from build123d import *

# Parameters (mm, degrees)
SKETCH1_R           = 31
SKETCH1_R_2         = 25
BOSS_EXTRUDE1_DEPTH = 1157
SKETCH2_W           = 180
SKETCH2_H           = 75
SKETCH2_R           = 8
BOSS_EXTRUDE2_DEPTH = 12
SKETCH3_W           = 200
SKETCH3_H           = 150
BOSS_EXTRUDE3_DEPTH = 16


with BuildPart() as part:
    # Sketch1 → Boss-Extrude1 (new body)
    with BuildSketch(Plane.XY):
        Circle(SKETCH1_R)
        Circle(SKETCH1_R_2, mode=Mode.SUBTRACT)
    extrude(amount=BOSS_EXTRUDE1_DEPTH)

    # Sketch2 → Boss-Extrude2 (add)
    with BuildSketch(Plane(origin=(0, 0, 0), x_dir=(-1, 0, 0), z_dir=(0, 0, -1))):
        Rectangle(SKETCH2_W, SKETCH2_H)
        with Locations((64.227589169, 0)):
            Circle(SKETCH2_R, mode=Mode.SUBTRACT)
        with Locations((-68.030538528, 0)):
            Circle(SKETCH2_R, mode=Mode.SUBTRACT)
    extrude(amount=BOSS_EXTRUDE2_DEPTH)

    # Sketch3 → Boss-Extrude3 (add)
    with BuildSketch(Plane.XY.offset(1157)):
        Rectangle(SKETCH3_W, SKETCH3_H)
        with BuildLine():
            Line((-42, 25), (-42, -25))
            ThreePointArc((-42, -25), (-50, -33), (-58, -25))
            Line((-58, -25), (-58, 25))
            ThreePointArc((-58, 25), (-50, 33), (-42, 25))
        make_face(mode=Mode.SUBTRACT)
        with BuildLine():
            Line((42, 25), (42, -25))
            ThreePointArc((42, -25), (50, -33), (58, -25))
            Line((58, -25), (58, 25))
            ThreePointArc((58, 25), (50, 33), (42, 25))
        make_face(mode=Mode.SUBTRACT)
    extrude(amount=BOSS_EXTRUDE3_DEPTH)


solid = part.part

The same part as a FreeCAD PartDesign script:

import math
import FreeCAD as App
import Part
import Sketcher
from FreeCAD import Vector


def add_polygon(sketch, points):
    """Adds a closed chain of lines whose ends are joined by coincident constraints."""
    first, n = sketch.GeometryCount, len(points)
    for a, b in zip(points, points[1:] + points[:1]):
        sketch.addGeometry(Part.LineSegment(App.Vector(*a, 0), App.Vector(*b, 0)), False)
    for i in range(n):
        sketch.addConstraint(Sketcher.Constraint("Coincident", first + i, 2, first + (i + 1) % n, 1))

doc = App.newDocument("Part")
params = doc.addObject("Spreadsheet::Sheet", "Params")
for row, (alias, value) in enumerate([
    ("sketch1_diameter", "62 mm"),
    ("sketch1_diameter2", "50 mm"),
    ("pad1_length", "1157 mm"),
    ("sketch2_diameter", "16 mm"),
    ("sketch2_width", "180 mm"),
    ("sketch2_height", "75 mm"),
    ("pad2_length", "12 mm"),
    ("sketch3_radius", "8 mm"),
    ("sketch3_width", "200 mm"),
    ("sketch3_height", "150 mm"),
    ("sketch3_height2", "50 mm"),
    ("pad3_length", "16 mm"),
], start=1):
    params.set(f"A{row}", alias)
    params.set(f"B{row}", "=" + value)
    params.setAlias(f"B{row}", alias)

body = doc.addObject("PartDesign::Body", "Body")

# Sketch on XY plane
sketch1 = body.newObject("Sketcher::SketchObject", "Sketch")
sketch1.AttachmentSupport = (doc.getObject("XY_Plane"), [""])
sketch1.MapMode = "FlatFace"
sketch1.addGeometry([
    Part.Circle(Vector(0, 0, 0), Vector(0, 0, 1), 31),
    Part.Circle(Vector(0, 0, 0), Vector(0, 0, 1), 25),
], False)
sketch1.addConstraint([
    Sketcher.Constraint("Coincident", 0, 3, -1, 1),
    Sketcher.Constraint("Coincident", 1, 3, -1, 1),
    Sketcher.Constraint("Diameter", 0, 62.0),
    Sketcher.Constraint("Diameter", 1, 50.0),
])
sketch1.setExpression("Constraints[2]", "Params.sketch1_diameter")
sketch1.setExpression("Constraints[3]", "Params.sketch1_diameter2")
pad1 = body.newObject("PartDesign::Pad", "Pad")
pad1.Profile = sketch1
pad1.setExpression("Length", "Params.pad1_length")

# Sketch on XY plane
sketch2 = body.newObject("Sketcher::SketchObject", "Sketch001")
sketch2.AttachmentSupport = (doc.getObject("XY_Plane"), [""])
sketch2.MapMode = "FlatFace"
add_polygon(sketch2, [(90, 38), (90, -38), (-90, -38), (-90, 38)])  # lines 0-3
sketch2.addGeometry(Part.Circle(Vector(68, 0, 0), Vector(0, 0, 1), 8), False)  # 4
sketch2.addGeometry(Part.Circle(Vector(-64, 0, 0), Vector(0, 0, 1), 8), False)  # 5
sketch2.addConstraint([
    Sketcher.Constraint("Vertical", 0),
    Sketcher.Constraint("Horizontal", 1),
    Sketcher.Constraint("Vertical", 2),
    Sketcher.Constraint("Horizontal", 3),
    Sketcher.Constraint("Equal", 4, 5),
    Sketcher.Constraint("Symmetric", 0, 2, 2, 2, -1, 1),
    Sketcher.Constraint("PointOnObject", 4, 3, -1),
    Sketcher.Constraint("PointOnObject", 5, 3, -1),
    Sketcher.Constraint("Diameter", 4, 16.0),
    Sketcher.Constraint("DistanceX", 1, 2, 1, 1, 180.0),
    Sketcher.Constraint("DistanceY", 0, 2, 0, 1, 75.0),
    Sketcher.Constraint("DistanceX", -1, 1, 4, 3, 68.030539),
    Sketcher.Constraint("DistanceX", 5, 3, -1, 1, 64.227589),
])
sketch2.setExpression("Constraints[12]", "Params.sketch2_diameter")
sketch2.setExpression("Constraints[13]", "Params.sketch2_width")
sketch2.setExpression("Constraints[14]", "Params.sketch2_height")
pad2 = body.newObject("PartDesign::Pad", "Pad001")
pad2.Profile = sketch2
pad2.setExpression("Length", "Params.pad2_length")
pad2.Reversed = True

# Sketch on XY plane
sketch3 = body.newObject("Sketcher::SketchObject", "Sketch002")
sketch3.AttachmentSupport = (doc.getObject("XY_Plane"), [""])
sketch3.MapMode = "FlatFace"
sketch3.AttachmentOffset = App.Placement(Vector(0, 0, 1157), App.Rotation())
add_polygon(sketch3, [(-100, 75), (-100, -75), (100, -75), (100, 75)])  # lines 0-3
sketch3.addGeometry(Part.ArcOfCircle(Part.Circle(Vector(-50, 25, 0), Vector(0, 0, 1), 8), math.radians(0), math.radians(180)), False)  # 4
sketch3.addGeometry(Part.LineSegment(Vector(-42, 25, 0), Vector(-42, -25, 0)), False)  # 5
sketch3.addGeometry(Part.ArcOfCircle(Part.Circle(Vector(-50, -25, 0), Vector(0, 0, 1), 8), math.radians(180), math.radians(360)), False)  # 6
sketch3.addGeometry(Part.LineSegment(Vector(-58, -25, 0), Vector(-58, 25, 0)), False)  # 7
sketch3.addGeometry(Part.LineSegment(Vector(42, -25, 0), Vector(42, 25, 0)), False)  # 8
sketch3.addGeometry(Part.ArcOfCircle(Part.Circle(Vector(50, 25, 0), Vector(0, 0, 1), 8), math.radians(0), math.radians(180)), False)  # 9
sketch3.addGeometry(Part.LineSegment(Vector(58, 25, 0), Vector(58, -25, 0)), False)  # 10
sketch3.addGeometry(Part.ArcOfCircle(Part.Circle(Vector(50, -25, 0), Vector(0, 0, 1), 8), math.radians(180), math.radians(360)), False)  # 11
sketch3.addConstraint([
    Sketcher.Constraint("Tangent", 4, 1, 5, 1),
    Sketcher.Constraint("Tangent", 5, 2, 6, 2),
    Sketcher.Constraint("Tangent", 6, 1, 7, 1),
    Sketcher.Constraint("Tangent", 7, 2, 4, 2),
    Sketcher.Constraint("Tangent", 8, 2, 9, 2),
    Sketcher.Constraint("Tangent", 9, 1, 10, 1),
    Sketcher.Constraint("Tangent", 10, 2, 11, 2),
    Sketcher.Constraint("Tangent", 11, 1, 8, 1),
    Sketcher.Constraint("Vertical", 0),
    Sketcher.Constraint("Horizontal", 1),
    Sketcher.Constraint("Vertical", 2),
    Sketcher.Constraint("Horizontal", 3),
    Sketcher.Constraint("Vertical", 5),
    Sketcher.Constraint("Vertical", 7),
    Sketcher.Constraint("Vertical", 8),
    Sketcher.Constraint("Vertical", 10),
    Sketcher.Constraint("Equal", 6, 9),
    Sketcher.Constraint("Symmetric", 6, 3, 9, 3, -1, 1),
    Sketcher.Constraint("Symmetric", 0, 2, 2, 2, -1, 1),
    Sketcher.Constraint("Horizontal", 4, 3, 9, 3),
    Sketcher.Constraint("Horizontal", 6, 3, 11, 3),
    Sketcher.Constraint("Radius", 4, 8.0),
    Sketcher.Constraint("DistanceX", 1, 1, 1, 2, 200.0),
    Sketcher.Constraint("DistanceY", 0, 2, 0, 1, 150.0),
    Sketcher.Constraint("DistanceY", 5, 2, 5, 1, 50.0),
    Sketcher.Constraint("DistanceX", 4, 3, -1, 1, 50.0),
])
sketch3.setExpression("Constraints[25]", "Params.sketch3_radius")
sketch3.setExpression("Constraints[26]", "Params.sketch3_width")
sketch3.setExpression("Constraints[27]", "Params.sketch3_height")
sketch3.setExpression("Constraints[28]", "Params.sketch3_height2")
pad3 = body.newObject("PartDesign::Pad", "Pad002")
pad3.Profile = sketch3
pad3.setExpression("Length", "Params.pad3_length")

doc.recompute()
